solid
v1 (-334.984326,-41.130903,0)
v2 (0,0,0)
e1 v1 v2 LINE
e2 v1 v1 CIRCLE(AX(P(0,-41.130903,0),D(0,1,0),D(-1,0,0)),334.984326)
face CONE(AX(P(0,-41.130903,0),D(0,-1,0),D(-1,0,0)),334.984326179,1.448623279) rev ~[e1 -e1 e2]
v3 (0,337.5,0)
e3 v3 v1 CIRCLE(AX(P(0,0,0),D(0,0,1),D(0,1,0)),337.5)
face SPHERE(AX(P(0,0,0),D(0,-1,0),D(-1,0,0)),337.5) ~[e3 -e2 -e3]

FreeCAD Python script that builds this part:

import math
import FreeCAD as App
import Part
import Sketcher
from FreeCAD import Vector
Q = App.Units.Quantity

doc = App.newDocument("Part")
body = doc.addObject("PartDesign::Body", "Body")

# Sketch on XY plane
sketch1 = body.newObject("Sketcher::SketchObject", "Sketch")
sketch1.AttachmentSupport = (doc.getObject("XY_Plane"), [""])
sketch1.MapMode = "FlatFace"
sketch1.addGeometry(Part.LineSegment(Vector(0, 0, 0), Vector(0, 338, 0)), False)
sketch1.addGeometry(Part.ArcOfCircle(Part.Circle(Vector(0, 0, 0), Vector(0, 0, 1), 338), math.radians(90), math.radians(187)), False)
sketch1.addGeometry(Part.LineSegment(Vector(-335, -41, 0), Vector(0, 0, 0)), False)
sketch1.addConstraint(Sketcher.Constraint("Coincident", 0, 2, 1, 1))
sketch1.addConstraint(Sketcher.Constraint("Coincident", 1, 2, 2, 1))
sketch1.addConstraint(Sketcher.Constraint("Coincident", 2, 2, 0, 1))
sketch1.addConstraint(Sketcher.Constraint("Vertical", 0))
sketch1.addConstraint(Sketcher.Constraint("Coincident", 1, 3, -1, 1))
sketch1.addConstraint(Sketcher.Constraint("Coincident", 2, 2, -1, 1))
sketch1.addConstraint(Sketcher.Constraint("Radius", 1, Q("337.5 mm")))
sketch1.addConstraint(Sketcher.Constraint("Angle", 2, Q("7 deg")))
revolution = body.newObject("PartDesign::Revolution", "Revolution")
revolution.Profile = sketch1
revolution.ReferenceAxis = (sketch1, ["V_Axis"])
revolution.Angle = 360

doc.recompute()
